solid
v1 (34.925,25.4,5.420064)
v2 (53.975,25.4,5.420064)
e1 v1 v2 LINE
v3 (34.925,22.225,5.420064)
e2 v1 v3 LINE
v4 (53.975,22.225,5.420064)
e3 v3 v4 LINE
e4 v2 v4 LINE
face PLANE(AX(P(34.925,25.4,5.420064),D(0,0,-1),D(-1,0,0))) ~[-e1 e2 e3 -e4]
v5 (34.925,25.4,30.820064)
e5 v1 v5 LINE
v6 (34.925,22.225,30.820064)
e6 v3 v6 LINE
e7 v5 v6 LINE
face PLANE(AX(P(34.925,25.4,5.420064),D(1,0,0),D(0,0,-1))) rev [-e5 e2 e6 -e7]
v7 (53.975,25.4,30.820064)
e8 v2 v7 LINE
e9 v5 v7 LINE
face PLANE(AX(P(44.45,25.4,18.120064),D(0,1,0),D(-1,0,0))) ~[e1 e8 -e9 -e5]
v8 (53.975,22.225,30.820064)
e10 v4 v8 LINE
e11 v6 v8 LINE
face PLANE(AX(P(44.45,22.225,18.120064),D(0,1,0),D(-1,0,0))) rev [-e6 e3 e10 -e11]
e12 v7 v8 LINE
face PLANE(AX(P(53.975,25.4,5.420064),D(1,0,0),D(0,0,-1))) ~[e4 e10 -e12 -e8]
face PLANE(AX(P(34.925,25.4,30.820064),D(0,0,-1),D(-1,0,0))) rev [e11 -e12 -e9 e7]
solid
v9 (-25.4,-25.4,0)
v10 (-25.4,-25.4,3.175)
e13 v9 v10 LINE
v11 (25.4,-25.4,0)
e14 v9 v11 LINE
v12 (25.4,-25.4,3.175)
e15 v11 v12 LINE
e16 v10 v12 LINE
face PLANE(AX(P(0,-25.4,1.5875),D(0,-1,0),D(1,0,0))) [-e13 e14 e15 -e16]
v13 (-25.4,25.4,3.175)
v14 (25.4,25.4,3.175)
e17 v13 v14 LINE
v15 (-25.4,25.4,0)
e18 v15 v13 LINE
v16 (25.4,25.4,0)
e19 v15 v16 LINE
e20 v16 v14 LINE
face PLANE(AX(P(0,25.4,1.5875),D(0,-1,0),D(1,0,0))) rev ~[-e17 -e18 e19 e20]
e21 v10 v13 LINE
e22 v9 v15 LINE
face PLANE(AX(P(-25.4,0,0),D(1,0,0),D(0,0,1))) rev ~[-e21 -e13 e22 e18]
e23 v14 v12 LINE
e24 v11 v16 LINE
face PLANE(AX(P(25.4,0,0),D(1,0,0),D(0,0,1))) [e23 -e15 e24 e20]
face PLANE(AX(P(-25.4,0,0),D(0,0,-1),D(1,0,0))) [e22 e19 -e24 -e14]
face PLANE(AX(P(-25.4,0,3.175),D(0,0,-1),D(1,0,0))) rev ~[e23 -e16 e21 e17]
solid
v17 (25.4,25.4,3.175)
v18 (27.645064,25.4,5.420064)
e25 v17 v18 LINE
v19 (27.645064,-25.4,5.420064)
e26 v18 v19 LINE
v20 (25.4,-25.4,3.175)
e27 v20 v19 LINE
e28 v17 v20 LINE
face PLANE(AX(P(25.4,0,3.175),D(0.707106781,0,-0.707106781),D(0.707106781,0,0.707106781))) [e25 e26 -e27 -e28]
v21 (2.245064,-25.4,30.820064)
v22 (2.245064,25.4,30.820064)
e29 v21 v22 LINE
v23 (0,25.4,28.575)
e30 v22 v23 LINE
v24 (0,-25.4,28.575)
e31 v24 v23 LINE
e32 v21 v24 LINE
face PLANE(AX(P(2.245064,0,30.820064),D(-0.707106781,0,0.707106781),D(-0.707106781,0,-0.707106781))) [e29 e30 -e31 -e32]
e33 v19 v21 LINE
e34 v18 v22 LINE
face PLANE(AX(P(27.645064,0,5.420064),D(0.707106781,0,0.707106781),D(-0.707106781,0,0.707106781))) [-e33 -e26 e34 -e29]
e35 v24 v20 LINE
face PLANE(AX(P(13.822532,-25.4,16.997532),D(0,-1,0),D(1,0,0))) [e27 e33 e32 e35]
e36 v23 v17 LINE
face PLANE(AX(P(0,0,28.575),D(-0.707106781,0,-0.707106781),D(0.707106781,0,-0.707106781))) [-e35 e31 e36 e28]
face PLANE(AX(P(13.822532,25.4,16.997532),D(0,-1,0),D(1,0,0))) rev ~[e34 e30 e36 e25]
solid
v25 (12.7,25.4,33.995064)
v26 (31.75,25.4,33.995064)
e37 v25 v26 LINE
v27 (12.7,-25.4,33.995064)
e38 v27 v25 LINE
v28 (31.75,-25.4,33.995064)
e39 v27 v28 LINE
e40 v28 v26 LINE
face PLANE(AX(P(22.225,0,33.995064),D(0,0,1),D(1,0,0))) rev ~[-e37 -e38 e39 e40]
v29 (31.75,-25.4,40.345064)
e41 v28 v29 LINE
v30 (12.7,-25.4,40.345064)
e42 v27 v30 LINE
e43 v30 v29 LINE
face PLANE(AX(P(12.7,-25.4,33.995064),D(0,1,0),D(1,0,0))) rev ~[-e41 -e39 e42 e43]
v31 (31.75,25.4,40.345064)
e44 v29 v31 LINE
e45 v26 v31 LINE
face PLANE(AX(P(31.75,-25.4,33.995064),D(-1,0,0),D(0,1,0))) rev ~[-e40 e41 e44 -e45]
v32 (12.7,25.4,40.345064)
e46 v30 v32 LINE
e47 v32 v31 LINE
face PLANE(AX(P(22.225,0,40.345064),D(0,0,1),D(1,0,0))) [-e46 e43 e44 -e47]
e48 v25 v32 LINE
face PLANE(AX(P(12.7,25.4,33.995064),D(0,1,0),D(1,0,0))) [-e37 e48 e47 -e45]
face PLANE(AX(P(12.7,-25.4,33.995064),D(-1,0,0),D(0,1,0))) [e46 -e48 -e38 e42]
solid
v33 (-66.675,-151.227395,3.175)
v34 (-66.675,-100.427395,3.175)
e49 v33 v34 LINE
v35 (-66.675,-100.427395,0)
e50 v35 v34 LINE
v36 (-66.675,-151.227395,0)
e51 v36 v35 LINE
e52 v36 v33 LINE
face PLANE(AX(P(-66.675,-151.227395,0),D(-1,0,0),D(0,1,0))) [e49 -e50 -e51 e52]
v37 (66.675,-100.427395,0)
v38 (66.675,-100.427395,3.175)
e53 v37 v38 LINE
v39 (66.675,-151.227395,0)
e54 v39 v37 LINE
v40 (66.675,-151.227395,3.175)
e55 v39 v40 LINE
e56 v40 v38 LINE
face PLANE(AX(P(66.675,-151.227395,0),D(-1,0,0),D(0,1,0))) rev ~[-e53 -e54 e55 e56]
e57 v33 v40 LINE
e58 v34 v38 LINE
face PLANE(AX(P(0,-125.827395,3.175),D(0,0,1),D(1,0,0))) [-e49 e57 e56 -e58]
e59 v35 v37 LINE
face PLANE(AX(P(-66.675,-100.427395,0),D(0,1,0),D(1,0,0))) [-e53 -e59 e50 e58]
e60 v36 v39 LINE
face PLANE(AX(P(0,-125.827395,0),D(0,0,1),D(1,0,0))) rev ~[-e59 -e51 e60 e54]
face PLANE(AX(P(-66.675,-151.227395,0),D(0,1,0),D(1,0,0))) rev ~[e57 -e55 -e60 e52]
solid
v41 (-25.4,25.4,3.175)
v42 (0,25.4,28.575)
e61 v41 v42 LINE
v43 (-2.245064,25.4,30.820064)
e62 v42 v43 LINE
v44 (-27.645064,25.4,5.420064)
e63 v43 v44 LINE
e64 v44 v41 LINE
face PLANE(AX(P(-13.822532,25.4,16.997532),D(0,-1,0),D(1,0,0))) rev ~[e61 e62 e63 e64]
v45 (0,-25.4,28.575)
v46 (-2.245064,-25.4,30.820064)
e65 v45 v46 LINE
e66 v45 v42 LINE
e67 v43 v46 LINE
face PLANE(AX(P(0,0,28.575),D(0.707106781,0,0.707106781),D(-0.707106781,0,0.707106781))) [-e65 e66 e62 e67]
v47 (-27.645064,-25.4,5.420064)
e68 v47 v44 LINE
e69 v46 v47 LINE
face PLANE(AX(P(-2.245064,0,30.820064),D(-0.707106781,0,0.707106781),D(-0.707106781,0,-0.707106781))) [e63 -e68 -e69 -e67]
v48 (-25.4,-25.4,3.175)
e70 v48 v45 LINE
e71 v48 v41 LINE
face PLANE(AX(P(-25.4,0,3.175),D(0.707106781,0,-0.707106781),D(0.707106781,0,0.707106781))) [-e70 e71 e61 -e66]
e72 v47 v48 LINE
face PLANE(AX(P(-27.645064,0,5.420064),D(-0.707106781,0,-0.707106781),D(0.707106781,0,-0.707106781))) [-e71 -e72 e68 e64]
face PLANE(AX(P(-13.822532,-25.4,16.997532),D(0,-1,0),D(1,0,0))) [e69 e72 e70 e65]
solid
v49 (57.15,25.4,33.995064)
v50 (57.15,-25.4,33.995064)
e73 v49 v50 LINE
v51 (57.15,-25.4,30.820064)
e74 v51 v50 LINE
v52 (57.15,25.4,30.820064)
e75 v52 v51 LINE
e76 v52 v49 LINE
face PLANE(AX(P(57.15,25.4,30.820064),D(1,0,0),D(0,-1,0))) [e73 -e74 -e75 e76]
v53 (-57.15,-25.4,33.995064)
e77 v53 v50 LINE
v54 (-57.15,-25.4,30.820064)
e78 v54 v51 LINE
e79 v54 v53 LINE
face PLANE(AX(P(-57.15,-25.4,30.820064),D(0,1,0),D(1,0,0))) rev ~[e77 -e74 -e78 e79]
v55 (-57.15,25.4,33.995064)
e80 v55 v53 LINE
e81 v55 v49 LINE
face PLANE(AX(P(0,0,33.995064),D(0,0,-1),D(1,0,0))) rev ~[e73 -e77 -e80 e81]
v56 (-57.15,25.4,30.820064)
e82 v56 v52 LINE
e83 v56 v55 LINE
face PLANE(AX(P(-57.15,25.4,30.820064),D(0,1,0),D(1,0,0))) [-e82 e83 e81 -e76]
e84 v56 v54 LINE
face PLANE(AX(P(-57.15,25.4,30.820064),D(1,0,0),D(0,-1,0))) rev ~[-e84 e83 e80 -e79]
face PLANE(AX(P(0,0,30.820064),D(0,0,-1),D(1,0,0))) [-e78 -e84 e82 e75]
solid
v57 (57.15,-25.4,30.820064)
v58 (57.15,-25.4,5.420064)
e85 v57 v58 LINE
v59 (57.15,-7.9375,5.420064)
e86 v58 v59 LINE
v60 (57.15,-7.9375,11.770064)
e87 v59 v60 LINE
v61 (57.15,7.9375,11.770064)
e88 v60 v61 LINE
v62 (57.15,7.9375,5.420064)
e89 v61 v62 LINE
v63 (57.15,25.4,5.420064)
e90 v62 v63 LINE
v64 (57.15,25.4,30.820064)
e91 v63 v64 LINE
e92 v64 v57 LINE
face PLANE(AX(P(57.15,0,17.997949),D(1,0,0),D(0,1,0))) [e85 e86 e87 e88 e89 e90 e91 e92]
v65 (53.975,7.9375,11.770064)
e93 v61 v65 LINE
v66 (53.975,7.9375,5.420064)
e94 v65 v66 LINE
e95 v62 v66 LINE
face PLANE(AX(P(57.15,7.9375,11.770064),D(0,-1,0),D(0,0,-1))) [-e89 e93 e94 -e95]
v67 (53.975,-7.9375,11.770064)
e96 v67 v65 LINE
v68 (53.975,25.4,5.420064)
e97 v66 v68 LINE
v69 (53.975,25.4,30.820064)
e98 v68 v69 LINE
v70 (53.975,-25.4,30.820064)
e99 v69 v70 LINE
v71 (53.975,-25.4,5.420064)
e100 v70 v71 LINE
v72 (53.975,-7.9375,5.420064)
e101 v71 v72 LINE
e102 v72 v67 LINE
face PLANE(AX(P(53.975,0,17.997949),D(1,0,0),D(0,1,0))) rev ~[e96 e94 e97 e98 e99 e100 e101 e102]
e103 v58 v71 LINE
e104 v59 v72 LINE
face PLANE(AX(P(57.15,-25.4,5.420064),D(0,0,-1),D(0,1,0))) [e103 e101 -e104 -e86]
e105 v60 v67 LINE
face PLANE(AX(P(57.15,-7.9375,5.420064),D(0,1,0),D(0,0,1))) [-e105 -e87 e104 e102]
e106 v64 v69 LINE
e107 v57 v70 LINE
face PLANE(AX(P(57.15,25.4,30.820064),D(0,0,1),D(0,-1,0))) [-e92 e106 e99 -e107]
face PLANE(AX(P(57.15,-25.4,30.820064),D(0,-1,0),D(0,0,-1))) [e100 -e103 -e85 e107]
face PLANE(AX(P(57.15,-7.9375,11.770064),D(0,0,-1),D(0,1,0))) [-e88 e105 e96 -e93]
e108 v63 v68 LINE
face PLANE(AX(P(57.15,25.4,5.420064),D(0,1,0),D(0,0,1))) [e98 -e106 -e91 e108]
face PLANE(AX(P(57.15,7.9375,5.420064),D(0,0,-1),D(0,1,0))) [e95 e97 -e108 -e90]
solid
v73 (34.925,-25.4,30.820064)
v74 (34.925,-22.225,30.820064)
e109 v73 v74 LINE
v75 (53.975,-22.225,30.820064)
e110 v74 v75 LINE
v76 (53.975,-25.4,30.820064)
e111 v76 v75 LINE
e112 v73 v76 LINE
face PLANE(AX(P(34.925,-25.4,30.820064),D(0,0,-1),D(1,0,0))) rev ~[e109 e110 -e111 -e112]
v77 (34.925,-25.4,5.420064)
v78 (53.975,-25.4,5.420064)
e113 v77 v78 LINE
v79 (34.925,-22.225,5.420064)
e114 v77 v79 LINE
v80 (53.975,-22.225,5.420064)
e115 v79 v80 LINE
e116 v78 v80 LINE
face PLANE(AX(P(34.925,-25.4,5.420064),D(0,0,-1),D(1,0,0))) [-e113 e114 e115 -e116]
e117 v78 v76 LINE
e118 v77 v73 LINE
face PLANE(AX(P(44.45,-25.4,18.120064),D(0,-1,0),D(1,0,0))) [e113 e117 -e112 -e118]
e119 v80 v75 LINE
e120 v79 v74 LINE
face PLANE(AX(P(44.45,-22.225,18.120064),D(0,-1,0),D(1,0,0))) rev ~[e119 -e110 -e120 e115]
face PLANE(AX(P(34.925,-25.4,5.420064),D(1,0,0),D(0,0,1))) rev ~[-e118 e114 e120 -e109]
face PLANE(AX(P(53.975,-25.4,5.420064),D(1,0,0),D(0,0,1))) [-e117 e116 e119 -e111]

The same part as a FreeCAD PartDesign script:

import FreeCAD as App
import Part
import Sketcher

V = App.Vector
Q = App.Units.Quantity


def add_polygon(sketch, points):
    """Adds a closed chain of lines whose ends are joined by coincident constraints."""
    first, n = sketch.GeometryCount, len(points)
    for a, b in zip(points, points[1:] + points[:1]):
        sketch.addGeometry(Part.LineSegment(App.Vector(*a, 0), App.Vector(*b, 0)), False)
    for i in range(n):
        sketch.addConstraint(Sketcher.Constraint("Coincident", first + i, 2, first + (i + 1) % n, 1))

doc = App.newDocument("Part")
body = doc.addObject("PartDesign::Body", "Body")
body.AllowCompound = True

# Sketch on XZ plane
sketch1 = doc.addObject("Sketcher::SketchObject", "Sketch")
body.addObject(sketch1)
sketch1.AttachmentSupport = (doc.XZ_Plane, [""])
sketch1.MapMode = "FlatFace"
add_polygon(sketch1, [(-27.645064, 5.420064), (-25.4, 3.175), (0, 28.575), (-2.245064, 30.820064)])  # lines 0-3
add_polygon(sketch1, [(-25.4, 3.175), (-25.4, 0), (25.4, 0), (25.4, 3.175)])  # lines 4-7
add_polygon(sketch1, [(0, 28.575), (25.4, 3.175), (27.645064, 5.420064), (2.245064, 30.820064)])  # lines 8-11
sketch1.addConstraint([
    Sketcher.Constraint("Vertical", 4),
    Sketcher.Constraint("Horizontal", 5),
    Sketcher.Constraint("Vertical", 6),
    Sketcher.Constraint("Horizontal", 7),
    Sketcher.Constraint("Coincident", 7, 2, 0, 2),
    Sketcher.Constraint("Coincident", 8, 2, 6, 2),
    Sketcher.Constraint("Coincident", 11, 2, 1, 2),
    Sketcher.Constraint("Symmetric", 4, 2, 5, 2, -1, 1),
    Sketcher.Constraint("Symmetric", 3, 2, 9, 2, -2),
    Sketcher.Constraint("Symmetric", 2, 2, 10, 2, -2),
    Sketcher.Constraint("PointOnObject", 1, 2, -2),
    Sketcher.Constraint("Perpendicular", 0, 1),
    Sketcher.Constraint("Perpendicular", 1, 2),
    Sketcher.Constraint("Perpendicular", 2, 3),
    Sketcher.Constraint("Perpendicular", 3, 8),
    Sketcher.Constraint("DistanceX", 5, 1, 5, 2, Q("2 in")),
    Sketcher.Constraint("DistanceY", 4, 2, 4, 1, Q("0.125 in")),
    Sketcher.Constraint("Distance", 0, Q("0.125 in")),
])
pad1 = doc.addObject("PartDesign::Pad", "Pad")
body.addObject(pad1)
pad1.Profile = sketch1
pad1.Length = Q("2 in")
pad1.Midplane = True
body2 = doc.addObject("PartDesign::Body", "Body001")

# Sketch on XY plane
sketch2 = doc.addObject("Sketcher::SketchObject", "Sketch001")
body2.addObject(sketch2)
sketch2.AttachmentSupport = (doc.getObject("XY_Plane001"), [""])
sketch2.MapMode = "FlatFace"
sketch2.AttachmentOffset = App.Placement(V(0, 0, 30.820064), App.Rotation())
add_polygon(sketch2, [(-57.15, -25.4), (-57.15, 25.4), (57.15, 25.4), (57.15, -25.4)])  # lines 0-3
sketch2.addConstraint([
    Sketcher.Constraint("Vertical", 0),
    Sketcher.Constraint("Horizontal", 1),
    Sketcher.Constraint("Vertical", 2),
    Sketcher.Constraint("Horizontal", 3),
    Sketcher.Constraint("Symmetric", 0, 2, 2, 2, -1, 1),
    Sketcher.Constraint("DistanceY", 0, 1, 0, 2, Q("2 in")),
    Sketcher.Constraint("DistanceX", 1, 1, 1, 2, Q("4.5 in")),
])
pad2 = doc.addObject("PartDesign::Pad", "Pad001")
body2.addObject(pad2)
pad2.Profile = sketch2
pad2.Length = Q("0.125 in")
body3 = doc.addObject("PartDesign::Body", "Body002")

# Sketch on YZ plane
sketch3 = doc.addObject("Sketcher::SketchObject", "Sketch002")
body3.addObject(sketch3)
sketch3.AttachmentSupport = (doc.getObject("YZ_Plane002"), [""])
sketch3.MapMode = "FlatFace"
sketch3.AttachmentOffset = App.Placement(V(0, 0, 2.25 * 25.4), App.Rotation())
add_polygon(sketch3, [(25.4, 30.820064), (-25.4, 30.820064), (-25.4, 5.420064), (-7.9375, 5.420064), (-7.9375, 11.770064), (7.9375, 11.770064), (7.9375, 5.420064), (25.4, 5.420064)])  # lines 0-7
sketch3.addConstraint([
    Sketcher.Constraint("Horizontal", 0),
    Sketcher.Constraint("Vertical", 1),
    Sketcher.Constraint("Horizontal", 2),
    Sketcher.Constraint("Vertical", 3),
    Sketcher.Constraint("Horizontal", 4),
    Sketcher.Constraint("Vertical", 5),
    Sketcher.Constraint("Horizontal", 6),
    Sketcher.Constraint("Vertical", 7),
    Sketcher.Constraint("Symmetric", 2, 2, 5, 2, -2),
    Sketcher.Constraint("Equal", 2, 6),
    Sketcher.Constraint("DistanceX", 0, 2, 0, 1, Q("2 in")),
    Sketcher.Constraint("DistanceY", 1, 2, 1, 1, Q("1 in")),
    Sketcher.Constraint("DistanceY", 3, 1, 3, 2, Q("0.25 in")),
    Sketcher.Constraint("DistanceX", 2, 1, 2, 2, Q("0.6875 in")),
    Sketcher.Constraint("DistanceY", -1, 1, 0, 2, 30.820064),
])
pad3 = doc.addObject("PartDesign::Pad", "Pad002")
body3.addObject(pad3)
pad3.Profile = sketch3
pad3.Length = Q("0.125 in")
pad3.Reversed = True
body4 = doc.addObject("PartDesign::Body", "Body003")

# Sketch on XZ plane
sketch4 = doc.addObject("Sketcher::SketchObject", "Sketch003")
body4.addObject(sketch4)
sketch4.AttachmentSupport = (doc.getObject("XZ_Plane003"), [""])
sketch4.MapMode = "FlatFace"
sketch4.AttachmentOffset = App.Placement(V(0, 0, 1 * 25.4), App.Rotation())
add_polygon(sketch4, [(34.925, 30.820064), (34.925, 5.420064), (53.975, 5.420064), (53.975, 30.820064)])  # lines 0-3
sketch4.addConstraint([
    Sketcher.Constraint("Vertical", 0),
    Sketcher.Constraint("Horizontal", 1),
    Sketcher.Constraint("Vertical", 2),
    Sketcher.Constraint("Horizontal", 3),
    Sketcher.Constraint("DistanceY", 0, 2, 0, 1, Q("1 in")),
    Sketcher.Constraint("DistanceX", 1, 1, 1, 2, Q("0.75 in")),
    Sketcher.Constraint("DistanceX", -1, 1, 0, 2, Q("1.375 in")),
    Sketcher.Constraint("DistanceY", -1, 1, 0, 2, 5.420064),
])
pad4 = doc.addObject("PartDesign::Pad", "Pad003")
body4.addObject(pad4)
pad4.Profile = sketch4
pad4.Length = Q("0.125 in")
pad4.Reversed = True
body5 = doc.addObject("PartDesign::Body", "Body004")
doc.recompute()

mirroring = doc.addObject("Part::Mirroring", "Mirroring")
mirroring.Source = body4
mirroring.Base = V(0, 0, 0)
mirroring.Normal = V(0, -1, 0)
body5.BaseFeature = mirroring
doc.recompute()
body6 = doc.addObject("PartDesign::Body", "Body005")

# Sketch on XY plane
sketch5 = doc.addObject("Sketcher::SketchObject", "Sketch004")
body6.addObject(sketch5)
sketch5.AttachmentSupport = (doc.getObject("XY_Plane005"), [""])
sketch5.MapMode = "FlatFace"
sketch5.AttachmentOffset = App.Placement(V(0, 0, 33.995064), App.Rotation())
add_polygon(sketch5, [(12.7, 25.4), (12.7, -25.4), (31.75, -25.4), (31.75, 25.4)])  # lines 0-3
sketch5.addConstraint([
    Sketcher.Constraint("Vertical", 0),
    Sketcher.Constraint("Horizontal", 1),
    Sketcher.Constraint("Vertical", 2),
    Sketcher.Constraint("Horizontal", 3),
    Sketcher.Constraint("DistanceY", 0, 2, 0, 1, Q("2 in")),
    Sketcher.Constraint("DistanceY", 0, 2, -1, 1, Q("1 in")),
    Sketcher.Constraint("DistanceX", 1, 1, 1, 2, Q("0.75 in")),
    Sketcher.Constraint("DistanceX", -1, 1, 0, 2, Q("0.5 in")),
])
pad5 = doc.addObject("PartDesign::Pad", "Pad004")
body6.addObject(pad5)
pad5.Profile = sketch5
pad5.Length = Q("0.25 in")
body7 = doc.addObject("PartDesign::Body", "Body006")

# Sketch on XY plane
sketch6 = doc.addObject("Sketcher::SketchObject", "Sketch005")
body7.addObject(sketch6)
sketch6.AttachmentSupport = (doc.getObject("XY_Plane006"), [""])
sketch6.MapMode = "FlatFace"
add_polygon(sketch6, [(-66.675, -100.427395), (-66.675, -151.227395), (66.675, -151.227395), (66.675, -100.427395)])  # lines 0-3
sketch6.addConstraint([
    Sketcher.Constraint("Vertical", 0),
    Sketcher.Constraint("Horizontal", 1),
    Sketcher.Constraint("Vertical", 2),
    Sketcher.Constraint("Horizontal", 3),
    Sketcher.Constraint("DistanceY", 0, 2, 0, 1, Q("2 in")),
    Sketcher.Constraint("DistanceX", 1, 1, 1, 2, Q("5.25 in")),
    Sketcher.Constraint("DistanceX", 0, 2, -1, 1, Q("2.625 in")),
    Sketcher.Constraint("DistanceY", 0, 2, -1, 1, 151.227395),
])
pad6 = doc.addObject("PartDesign::Pad", "Pad005")
body7.addObject(pad6)
pad6.Profile = sketch6
pad6.Length = Q("0.125 in")
mirroring.Visibility = False

doc.recompute()
